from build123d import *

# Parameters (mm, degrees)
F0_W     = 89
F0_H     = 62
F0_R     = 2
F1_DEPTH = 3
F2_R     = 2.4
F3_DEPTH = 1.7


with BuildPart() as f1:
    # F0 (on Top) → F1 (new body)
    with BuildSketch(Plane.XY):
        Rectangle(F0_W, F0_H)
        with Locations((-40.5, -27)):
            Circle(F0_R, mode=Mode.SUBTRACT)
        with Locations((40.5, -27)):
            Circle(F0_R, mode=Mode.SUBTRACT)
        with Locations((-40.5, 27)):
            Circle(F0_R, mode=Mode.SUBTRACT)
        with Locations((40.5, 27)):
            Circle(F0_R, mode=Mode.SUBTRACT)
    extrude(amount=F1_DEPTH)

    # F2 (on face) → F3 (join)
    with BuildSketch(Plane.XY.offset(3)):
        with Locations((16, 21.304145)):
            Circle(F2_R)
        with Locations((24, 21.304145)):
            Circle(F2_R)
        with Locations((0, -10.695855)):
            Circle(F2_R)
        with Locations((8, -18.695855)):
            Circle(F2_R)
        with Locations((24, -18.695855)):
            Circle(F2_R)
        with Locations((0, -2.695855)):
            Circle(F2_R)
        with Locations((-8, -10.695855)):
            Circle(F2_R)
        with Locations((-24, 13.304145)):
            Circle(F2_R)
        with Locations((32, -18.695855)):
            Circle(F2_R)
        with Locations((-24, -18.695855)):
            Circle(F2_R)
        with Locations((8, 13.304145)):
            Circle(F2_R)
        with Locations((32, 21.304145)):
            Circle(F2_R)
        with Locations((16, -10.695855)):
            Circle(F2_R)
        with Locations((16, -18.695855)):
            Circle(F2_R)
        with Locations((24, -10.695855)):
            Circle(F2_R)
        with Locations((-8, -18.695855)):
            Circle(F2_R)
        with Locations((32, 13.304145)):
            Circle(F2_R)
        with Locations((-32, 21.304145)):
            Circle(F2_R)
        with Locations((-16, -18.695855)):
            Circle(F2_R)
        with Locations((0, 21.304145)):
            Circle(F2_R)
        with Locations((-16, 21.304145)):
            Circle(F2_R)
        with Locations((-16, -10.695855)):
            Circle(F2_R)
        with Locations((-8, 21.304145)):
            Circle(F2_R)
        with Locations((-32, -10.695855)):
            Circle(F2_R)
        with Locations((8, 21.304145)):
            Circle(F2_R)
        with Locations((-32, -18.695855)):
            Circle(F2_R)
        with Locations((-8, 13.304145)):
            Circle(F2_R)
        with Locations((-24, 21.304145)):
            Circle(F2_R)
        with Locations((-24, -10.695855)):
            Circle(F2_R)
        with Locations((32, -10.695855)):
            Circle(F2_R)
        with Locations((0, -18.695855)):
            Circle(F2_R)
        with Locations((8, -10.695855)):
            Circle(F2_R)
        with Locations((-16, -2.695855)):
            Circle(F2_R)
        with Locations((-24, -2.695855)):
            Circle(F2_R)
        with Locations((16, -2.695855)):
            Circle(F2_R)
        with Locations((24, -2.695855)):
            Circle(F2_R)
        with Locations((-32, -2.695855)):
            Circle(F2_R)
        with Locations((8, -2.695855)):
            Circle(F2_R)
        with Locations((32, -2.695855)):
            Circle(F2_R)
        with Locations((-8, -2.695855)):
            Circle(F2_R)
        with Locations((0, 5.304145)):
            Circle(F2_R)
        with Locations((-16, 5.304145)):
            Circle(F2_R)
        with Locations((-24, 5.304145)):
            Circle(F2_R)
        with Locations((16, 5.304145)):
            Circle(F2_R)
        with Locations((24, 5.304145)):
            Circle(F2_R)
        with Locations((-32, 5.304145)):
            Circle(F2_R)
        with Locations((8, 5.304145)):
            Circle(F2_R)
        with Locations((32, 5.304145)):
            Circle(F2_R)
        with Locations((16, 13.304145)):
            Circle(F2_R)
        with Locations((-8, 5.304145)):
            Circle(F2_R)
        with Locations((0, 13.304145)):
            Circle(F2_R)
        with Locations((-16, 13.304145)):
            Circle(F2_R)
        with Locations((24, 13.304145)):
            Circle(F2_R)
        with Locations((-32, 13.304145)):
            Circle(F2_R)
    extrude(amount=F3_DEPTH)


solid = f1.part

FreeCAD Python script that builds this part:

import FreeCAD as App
import Part
import Sketcher

V = App.Vector

doc = App.newDocument("Part")
params = doc.addObject("Spreadsheet::Sheet", "Params")
for row, (alias, value) in enumerate([
    ("sketch1_diameter", "4 mm"),
    ("sketch1_width", "89 mm"),
    ("sketch1_height", "62 mm"),
    ("pad1_length", "3 mm"),
    ("sketch2_diameter", "4.8 mm"),
    ("pad2_length", "1.7 mm"),
], start=1):
    params.set(f"A{row}", alias)
    params.set(f"B{row}", "=" + value)
    params.setAlias(f"B{row}", alias)

body = doc.addObject("PartDesign::Body", "Body")

sketch1 = body.newObject("Sketcher::SketchObject", "Sketch")
sketch1.AttachmentSupport = (doc.getObject("XY_Plane"), [""])
sketch1.MapMode = "FlatFace"
sketch1.addGeometry([
    Part.LineSegment(V(-44.5, 31, 0), V(-44.5, -31, 0)),
    Part.LineSegment(V(-44.5, -31, 0), V(44.5, -31, 0)),
    Part.LineSegment(V(44.5, -31, 0), V(44.5, 31, 0)),
    Part.LineSegment(V(44.5, 31, 0), V(-44.5, 31, 0)),
    Part.Circle(V(-40.5, -27, 0), V(0, 0, 1), 2),
    Part.Circle(V(40.5, -27, 0), V(0, 0, 1), 2),
    Part.Circle(V(-40.5, 27, 0), V(0, 0, 1), 2),
    Part.Circle(V(40.5, 27, 0), V(0, 0, 1), 2),
], False)
sketch1.addConstraint([
    Sketcher.Constraint("Coincident", 0, 2, 1, 1),
    Sketcher.Constraint("Coincident", 1, 2, 2, 1),
    Sketcher.Constraint("Coincident", 2, 2, 3, 1),
    Sketcher.Constraint("Coincident", 3, 2, 0, 1),
    Sketcher.Constraint("Vertical", 0),
    Sketcher.Constraint("Horizontal", 1),
    Sketcher.Constraint("Vertical", 2),
    Sketcher.Constraint("Horizontal", 3),
    Sketcher.Constraint("Equal", 4, 5),
    Sketcher.Constraint("Equal", 5, 6),
    Sketcher.Constraint("Equal", 6, 7),
    Sketcher.Constraint("Symmetric", 5, 3, 6, 3, -1, 1),
    Sketcher.Constraint("Symmetric", 4, 3, 7, 3, -1, 1),
    Sketcher.Constraint("Symmetric", 0, 2, 2, 2, -1, 1),
    Sketcher.Constraint("Symmetric", 4, 3, 5, 3, -2),
    Sketcher.Constraint("Diameter", 4, 4.0),
    Sketcher.Constraint("DistanceX", 1, 1, 1, 2, 89.0),
    Sketcher.Constraint("DistanceY", 0, 2, 0, 1, 62.0),
    Sketcher.Constraint("DistanceY", 4, 3, -1, 1, 27.0),
    Sketcher.Constraint("DistanceX", 4, 3, 5, 3, 81.0),
])
sketch1.setExpression("Constraints[15]", "Params.sketch1_diameter")
sketch1.setExpression("Constraints[16]", "Params.sketch1_width")
sketch1.setExpression("Constraints[17]", "Params.sketch1_height")
pad1 = body.newObject("PartDesign::Pad", "Pad")
pad1.Profile = sketch1
pad1.setExpression("Length", "Params.pad1_length")

sketch2 = body.newObject("Sketcher::SketchObject", "Sketch001")
sketch2.AttachmentSupport = (doc.getObject("XY_Plane"), [""])
sketch2.MapMode = "FlatFace"
sketch2.AttachmentOffset = App.Placement(V(0, 0, 3), App.Rotation())
sketch2.addGeometry([
    Part.Circle(V(16, 21.304145, 0), V(0, 0, 1), 2.4),
    Part.Circle(V(24, 21.304145, 0), V(0, 0, 1), 2.4),
    Part.Circle(V(0, -10.695855, 0), V(0, 0, 1), 2.4),
    Part.Circle(V(8, -18.695855, 0), V(0, 0, 1), 2.4),
    Part.Circle(V(24, -18.695855, 0), V(0, 0, 1), 2.4),
    Part.Circle(V(0, -2.695855, 0), V(0, 0, 1), 2.4),
    Part.Circle(V(-8, -10.695855, 0), V(0, 0, 1), 2.4),
    Part.Circle(V(-24, 13.304145, 0), V(0, 0, 1), 2.4),
    Part.Circle(V(32, -18.695855, 0), V(0, 0, 1), 2.4),
    Part.Circle(V(-24, -18.695855, 0), V(0, 0, 1), 2.4),
    Part.Circle(V(8, 13.304145, 0), V(0, 0, 1), 2.4),
    Part.Circle(V(32, 21.304145, 0), V(0, 0, 1), 2.4),
    Part.Circle(V(16, -10.695855, 0), V(0, 0, 1), 2.4),
    Part.Circle(V(16, -18.695855, 0), V(0, 0, 1), 2.4),
    Part.Circle(V(24, -10.695855, 0), V(0, 0, 1), 2.4),
    Part.Circle(V(-8, -18.695855, 0), V(0, 0, 1), 2.4),
    Part.Circle(V(32, 13.304145, 0), V(0, 0, 1), 2.4),
    Part.Circle(V(-32, 21.304145, 0), V(0, 0, 1), 2.4),
    Part.Circle(V(-16, -18.695855, 0), V(0, 0, 1), 2.4),
    Part.Circle(V(0, 21.304145, 0), V(0, 0, 1), 2.4),
    Part.Circle(V(-16, 21.304145, 0), V(0, 0, 1), 2.4),
    Part.Circle(V(-16, -10.695855, 0), V(0, 0, 1), 2.4),
    Part.Circle(V(-8, 21.304145, 0), V(0, 0, 1), 2.4),
    Part.Circle(V(-32, -10.695855, 0), V(0, 0, 1), 2.4),
    Part.Circle(V(8, 21.304145, 0), V(0, 0, 1), 2.4),
    Part.Circle(V(-32, -18.695855, 0), V(0, 0, 1), 2.4),
    Part.Circle(V(-8, 13.304145, 0), V(0, 0, 1), 2.4),
    Part.Circle(V(-24, 21.304145, 0), V(0, 0, 1), 2.4),
    Part.Circle(V(-24, -10.695855, 0), V(0, 0, 1), 2.4),
    Part.Circle(V(32, -10.695855, 0), V(0, 0, 1), 2.4),
    Part.Circle(V(0, -18.695855, 0), V(0, 0, 1), 2.4),
    Part.Circle(V(8, -10.695855, 0), V(0, 0, 1), 2.4),
    Part.Circle(V(-16, -2.695855, 0), V(0, 0, 1), 2.4),
    Part.Circle(V(-24, -2.695855, 0), V(0, 0, 1), 2.4),
    Part.Circle(V(16, -2.695855, 0), V(0, 0, 1), 2.4),
    Part.Circle(V(24, -2.695855, 0), V(0, 0, 1), 2.4),
    Part.Circle(V(-32, -2.695855, 0), V(0, 0, 1), 2.4),
    Part.Circle(V(8, -2.695855, 0), V(0, 0, 1), 2.4),
    Part.Circle(V(32, -2.695855, 0), V(0, 0, 1), 2.4),
    Part.Circle(V(-8, -2.695855, 0), V(0, 0, 1), 2.4),
    Part.Circle(V(0, 5.304145, 0), V(0, 0, 1), 2.4),
    Part.Circle(V(-16, 5.304145, 0), V(0, 0, 1), 2.4),
    Part.Circle(V(-24, 5.304145, 0), V(0, 0, 1), 2.4),
    Part.Circle(V(16, 5.304145, 0), V(0, 0, 1), 2.4),
    Part.Circle(V(24, 5.304145, 0), V(0, 0, 1), 2.4),
    Part.Circle(V(-32, 5.304145, 0), V(0, 0, 1), 2.4),
    Part.Circle(V(8, 5.304145, 0), V(0, 0, 1), 2.4),
    Part.Circle(V(32, 5.304145, 0), V(0, 0, 1), 2.4),
    Part.Circle(V(16, 13.304145, 0), V(0, 0, 1), 2.4),
    Part.Circle(V(-8, 5.304145, 0), V(0, 0, 1), 2.4),
    Part.Circle(V(0, 13.304145, 0), V(0, 0, 1), 2.4),
    Part.Circle(V(-16, 13.304145, 0), V(0, 0, 1), 2.4),
    Part.Circle(V(24, 13.304145, 0), V(0, 0, 1), 2.4),
    Part.Circle(V(-32, 13.304145, 0), V(0, 0, 1), 2.4),
], False)
sketch2.addConstraint([
    Sketcher.Constraint("Equal", 0, 1),
    Sketcher.Constraint("Equal", 1, 2),
    Sketcher.Constraint("Equal", 2, 3),
    Sketcher.Constraint("Equal", 3, 4),
    Sketcher.Constraint("Equal", 4, 5),
    Sketcher.Constraint("Equal", 5, 6),
    Sketcher.Constraint("Equal", 6, 7),
    Sketcher.Constraint("Equal", 7, 8),
    Sketcher.Constraint("Equal", 8, 9),
    Sketcher.Constraint("Equal", 9, 10),
    Sketcher.Constraint("Equal", 10, 11),
    Sketcher.Constraint("Equal", 11, 12),
    Sketcher.Constraint("Equal", 12, 13),
    Sketcher.Constraint("Equal", 13, 14),
    Sketcher.Constraint("Equal", 14, 15),
    Sketcher.Constraint("Equal", 15, 16),
    Sketcher.Constraint("Equal", 16, 17),
    Sketcher.Constraint("Equal", 17, 18),
    Sketcher.Constraint("Equal", 18, 19),
    Sketcher.Constraint("Equal", 19, 20),
    Sketcher.Constraint("Equal", 20, 21),
    Sketcher.Constraint("Equal", 21, 22),
    Sketcher.Constraint("Equal", 22, 23),
    Sketcher.Constraint("Equal", 23, 24),
    Sketcher.Constraint("Equal", 24, 25),
    Sketcher.Constraint("Equal", 25, 26),
    Sketcher.Constraint("Equal", 26, 27),
    Sketcher.Constraint("Equal", 27, 28),
    Sketcher.Constraint("Equal", 28, 29),
    Sketcher.Constraint("Equal", 29, 30),
    Sketcher.Constraint("Equal", 30, 31),
    Sketcher.Constraint("Equal", 31, 32),
    Sketcher.Constraint("Equal", 32, 33),
    Sketcher.Constraint("Equal", 33, 34),
    Sketcher.Constraint("Equal", 34, 35),
    Sketcher.Constraint("Equal", 35, 36),
    Sketcher.Constraint("Equal", 36, 37),
    Sketcher.Constraint("Equal", 37, 38),
    Sketcher.Constraint("Equal", 38, 39),
    Sketcher.Constraint("Equal", 39, 40),
    Sketcher.Constraint("Equal", 40, 41),
    Sketcher.Constraint("Equal", 41, 42),
    Sketcher.Constraint("Equal", 42, 43),
    Sketcher.Constraint("Equal", 43, 44),
    Sketcher.Constraint("Equal", 44, 45),
    Sketcher.Constraint("Equal", 45, 46),
    Sketcher.Constraint("Equal", 46, 47),
    Sketcher.Constraint("Equal", 47, 48),
    Sketcher.Constraint("Equal", 48, 49),
    Sketcher.Constraint("Equal", 49, 50),
    Sketcher.Constraint("Equal", 50, 51),
    Sketcher.Constraint("Equal", 51, 52),
    Sketcher.Constraint("Equal", 52, 53),
    Sketcher.Constraint("Symmetric", 4, 3, 9, 3, -2),
    Sketcher.Constraint("Symmetric", 3, 3, 15, 3, -2),
    Sketcher.Constraint("Symmetric", 11, 3, 17, 3, -2),
    Sketcher.Constraint("Symmetric", 13, 3, 18, 3, -2),
    Sketcher.Constraint("Symmetric", 0, 3, 20, 3, -2),
    Sketcher.Constraint("Symmetric", 12, 3, 21, 3, -2),
    Sketcher.Constraint("Symmetric", 22, 3, 24, 3, -2),
    Sketcher.Constraint("Symmetric", 8, 3, 25, 3, -2),
    Sketcher.Constraint("Symmetric", 10, 3, 26, 3, -2),
    Sketcher.Constraint("Symmetric", 1, 3, 27, 3, -2),
    Sketcher.Constraint("Symmetric", 14, 3, 28, 3, -2),
    Sketcher.Constraint("Symmetric", 23, 3, 29, 3, -2),
    Sketcher.Constraint("Symmetric", 6, 3, 31, 3, -2),
    Sketcher.Constraint("Symmetric", 32, 3, 34, 3, -2),
    Sketcher.Constraint("Symmetric", 33, 3, 35, 3, -2),
    Sketcher.Constraint("Symmetric", 36, 3, 38, 3, -2),
    Sketcher.Constraint("Symmetric", 37, 3, 39, 3, -2),
    Sketcher.Constraint("Symmetric", 41, 3, 43, 3, -2),
    Sketcher.Constraint("Symmetric", 42, 3, 44, 3, -2),
    Sketcher.Constraint("Symmetric", 45, 3, 47, 3, -2),
    Sketcher.Constraint("Symmetric", 46, 3, 49, 3, -2),
    Sketcher.Constraint("Symmetric", 48, 3, 51, 3, -2),
    Sketcher.Constraint("Symmetric", 7, 3, 52, 3, -2),
    Sketcher.Constraint("Symmetric", 16, 3, 53, 3, -2),
    Sketcher.Constraint("PointOnObject", 2, 3, -2),
    Sketcher.Constraint("PointOnObject", 5, 3, -2),
    Sketcher.Constraint("PointOnObject", 19, 3, -2),
    Sketcher.Constraint("PointOnObject", 30, 3, -2),
    Sketcher.Constraint("PointOnObject", 40, 3, -2),
    Sketcher.Constraint("PointOnObject", 50, 3, -2),
    Sketcher.Constraint("Horizontal", 0, 3, 1, 3),
    Sketcher.Constraint("Horizontal", 3, 3, 4, 3),
    Sketcher.Constraint("Horizontal", 2, 3, 6, 3),
    Sketcher.Constraint("Horizontal", 4, 3, 8, 3),
    Sketcher.Constraint("Horizontal", 7, 3, 10, 3),
    Sketcher.Constraint("Horizontal", 1, 3, 11, 3),
    Sketcher.Constraint("Horizontal", 6, 3, 12, 3),
    Sketcher.Constraint("Horizontal", 9, 3, 13, 3),
    Sketcher.Constraint("Horizontal", 12, 3, 14, 3),
    Sketcher.Constraint("Horizontal", 10, 3, 16, 3),
    Sketcher.Constraint("Horizontal", 17, 3, 19, 3),
    Sketcher.Constraint("Horizontal", 20, 3, 22, 3),
    Sketcher.Constraint("Horizontal", 21, 3, 23, 3),
    Sketcher.Constraint("Horizontal", 25, 3, 30, 3),
    Sketcher.Constraint("Horizontal", 5, 3, 32, 3),
    Sketcher.Constraint("Horizontal", 32, 3, 33, 3),
    Sketcher.Constraint("Horizontal", 35, 3, 36, 3),
    Sketcher.Constraint("Horizontal", 36, 3, 37, 3),
    Sketcher.Constraint("Horizontal", 40, 3, 41, 3),
    Sketcher.Constraint("Horizontal", 41, 3, 42, 3),
    Sketcher.Constraint("Horizontal", 44, 3, 45, 3),
    Sketcher.Constraint("Horizontal", 45, 3, 46, 3),
    Sketcher.Constraint("Horizontal", 26, 3, 48, 3),
    Sketcher.Constraint("Horizontal", 48, 3, 50, 3),
    Sketcher.Constraint("Vertical", 1, 3, 4, 3),
    Sketcher.Constraint("Vertical", 7, 3, 9, 3),
    Sketcher.Constraint("Vertical", 3, 3, 10, 3),
    Sketcher.Constraint("Vertical", 8, 3, 11, 3),
    Sketcher.Constraint("Vertical", 0, 3, 12, 3),
    Sketcher.Constraint("Vertical", 12, 3, 13, 3),
    Sketcher.Constraint("Vertical", 4, 3, 14, 3),
    Sketcher.Constraint("Vertical", 6, 3, 15, 3),
    Sketcher.Constraint("Vertical", 11, 3, 16, 3),
    Sketcher.Constraint("Vertical", 15, 3, 22, 3),
    Sketcher.Constraint("Vertical", 17, 3, 23, 3),
    Sketcher.Constraint("Vertical", 21, 3, 32, 3),
    Sketcher.Constraint("Vertical", 28, 3, 33, 3),
    Sketcher.Constraint("Vertical", 25, 3, 36, 3),
    Sketcher.Constraint("Vertical", 31, 3, 37, 3),
    Sketcher.Constraint("Vertical", 32, 3, 41, 3),
    Sketcher.Constraint("Vertical", 33, 3, 42, 3),
    Sketcher.Constraint("Vertical", 36, 3, 45, 3),
    Sketcher.Constraint("Vertical", 37, 3, 46, 3),
    Sketcher.Constraint("Vertical", 43, 3, 48, 3),
    Sketcher.Constraint("Diameter", 0, 4.8),
    Sketcher.Constraint("DistanceX", -1, 1, 0, 3, 16.0),
    Sketcher.Constraint("DistanceX", -1, 1, 1, 3, 24.0),
    Sketcher.Constraint("DistanceX", -1, 1, 3, 3, 8.0),
    Sketcher.Constraint("DistanceX", -1, 1, 8, 3, 32.0),
    Sketcher.Constraint("DistanceY", 2, 3, 0, 3, 32.0),
    Sketcher.Constraint("DistanceY", 3, 3, 2, 3, 8.0),
    Sketcher.Constraint("DistanceY", 2, 3, 5, 3, 8.0),
    Sketcher.Constraint("DistanceY", 5, 3, 7, 3, 16.0),
    Sketcher.Constraint("DistanceY", 5, 3, 40, 3, 8.0),
    Sketcher.Constraint("DistanceY", -1, 1, 0, 3, 21.304145),
])
sketch2.setExpression("Constraints[127]", "Params.sketch2_diameter")
pad2 = body.newObject("PartDesign::Pad", "Pad001")
pad2.Profile = sketch2
pad2.setExpression("Length", "Params.pad2_length")

doc.recompute()
